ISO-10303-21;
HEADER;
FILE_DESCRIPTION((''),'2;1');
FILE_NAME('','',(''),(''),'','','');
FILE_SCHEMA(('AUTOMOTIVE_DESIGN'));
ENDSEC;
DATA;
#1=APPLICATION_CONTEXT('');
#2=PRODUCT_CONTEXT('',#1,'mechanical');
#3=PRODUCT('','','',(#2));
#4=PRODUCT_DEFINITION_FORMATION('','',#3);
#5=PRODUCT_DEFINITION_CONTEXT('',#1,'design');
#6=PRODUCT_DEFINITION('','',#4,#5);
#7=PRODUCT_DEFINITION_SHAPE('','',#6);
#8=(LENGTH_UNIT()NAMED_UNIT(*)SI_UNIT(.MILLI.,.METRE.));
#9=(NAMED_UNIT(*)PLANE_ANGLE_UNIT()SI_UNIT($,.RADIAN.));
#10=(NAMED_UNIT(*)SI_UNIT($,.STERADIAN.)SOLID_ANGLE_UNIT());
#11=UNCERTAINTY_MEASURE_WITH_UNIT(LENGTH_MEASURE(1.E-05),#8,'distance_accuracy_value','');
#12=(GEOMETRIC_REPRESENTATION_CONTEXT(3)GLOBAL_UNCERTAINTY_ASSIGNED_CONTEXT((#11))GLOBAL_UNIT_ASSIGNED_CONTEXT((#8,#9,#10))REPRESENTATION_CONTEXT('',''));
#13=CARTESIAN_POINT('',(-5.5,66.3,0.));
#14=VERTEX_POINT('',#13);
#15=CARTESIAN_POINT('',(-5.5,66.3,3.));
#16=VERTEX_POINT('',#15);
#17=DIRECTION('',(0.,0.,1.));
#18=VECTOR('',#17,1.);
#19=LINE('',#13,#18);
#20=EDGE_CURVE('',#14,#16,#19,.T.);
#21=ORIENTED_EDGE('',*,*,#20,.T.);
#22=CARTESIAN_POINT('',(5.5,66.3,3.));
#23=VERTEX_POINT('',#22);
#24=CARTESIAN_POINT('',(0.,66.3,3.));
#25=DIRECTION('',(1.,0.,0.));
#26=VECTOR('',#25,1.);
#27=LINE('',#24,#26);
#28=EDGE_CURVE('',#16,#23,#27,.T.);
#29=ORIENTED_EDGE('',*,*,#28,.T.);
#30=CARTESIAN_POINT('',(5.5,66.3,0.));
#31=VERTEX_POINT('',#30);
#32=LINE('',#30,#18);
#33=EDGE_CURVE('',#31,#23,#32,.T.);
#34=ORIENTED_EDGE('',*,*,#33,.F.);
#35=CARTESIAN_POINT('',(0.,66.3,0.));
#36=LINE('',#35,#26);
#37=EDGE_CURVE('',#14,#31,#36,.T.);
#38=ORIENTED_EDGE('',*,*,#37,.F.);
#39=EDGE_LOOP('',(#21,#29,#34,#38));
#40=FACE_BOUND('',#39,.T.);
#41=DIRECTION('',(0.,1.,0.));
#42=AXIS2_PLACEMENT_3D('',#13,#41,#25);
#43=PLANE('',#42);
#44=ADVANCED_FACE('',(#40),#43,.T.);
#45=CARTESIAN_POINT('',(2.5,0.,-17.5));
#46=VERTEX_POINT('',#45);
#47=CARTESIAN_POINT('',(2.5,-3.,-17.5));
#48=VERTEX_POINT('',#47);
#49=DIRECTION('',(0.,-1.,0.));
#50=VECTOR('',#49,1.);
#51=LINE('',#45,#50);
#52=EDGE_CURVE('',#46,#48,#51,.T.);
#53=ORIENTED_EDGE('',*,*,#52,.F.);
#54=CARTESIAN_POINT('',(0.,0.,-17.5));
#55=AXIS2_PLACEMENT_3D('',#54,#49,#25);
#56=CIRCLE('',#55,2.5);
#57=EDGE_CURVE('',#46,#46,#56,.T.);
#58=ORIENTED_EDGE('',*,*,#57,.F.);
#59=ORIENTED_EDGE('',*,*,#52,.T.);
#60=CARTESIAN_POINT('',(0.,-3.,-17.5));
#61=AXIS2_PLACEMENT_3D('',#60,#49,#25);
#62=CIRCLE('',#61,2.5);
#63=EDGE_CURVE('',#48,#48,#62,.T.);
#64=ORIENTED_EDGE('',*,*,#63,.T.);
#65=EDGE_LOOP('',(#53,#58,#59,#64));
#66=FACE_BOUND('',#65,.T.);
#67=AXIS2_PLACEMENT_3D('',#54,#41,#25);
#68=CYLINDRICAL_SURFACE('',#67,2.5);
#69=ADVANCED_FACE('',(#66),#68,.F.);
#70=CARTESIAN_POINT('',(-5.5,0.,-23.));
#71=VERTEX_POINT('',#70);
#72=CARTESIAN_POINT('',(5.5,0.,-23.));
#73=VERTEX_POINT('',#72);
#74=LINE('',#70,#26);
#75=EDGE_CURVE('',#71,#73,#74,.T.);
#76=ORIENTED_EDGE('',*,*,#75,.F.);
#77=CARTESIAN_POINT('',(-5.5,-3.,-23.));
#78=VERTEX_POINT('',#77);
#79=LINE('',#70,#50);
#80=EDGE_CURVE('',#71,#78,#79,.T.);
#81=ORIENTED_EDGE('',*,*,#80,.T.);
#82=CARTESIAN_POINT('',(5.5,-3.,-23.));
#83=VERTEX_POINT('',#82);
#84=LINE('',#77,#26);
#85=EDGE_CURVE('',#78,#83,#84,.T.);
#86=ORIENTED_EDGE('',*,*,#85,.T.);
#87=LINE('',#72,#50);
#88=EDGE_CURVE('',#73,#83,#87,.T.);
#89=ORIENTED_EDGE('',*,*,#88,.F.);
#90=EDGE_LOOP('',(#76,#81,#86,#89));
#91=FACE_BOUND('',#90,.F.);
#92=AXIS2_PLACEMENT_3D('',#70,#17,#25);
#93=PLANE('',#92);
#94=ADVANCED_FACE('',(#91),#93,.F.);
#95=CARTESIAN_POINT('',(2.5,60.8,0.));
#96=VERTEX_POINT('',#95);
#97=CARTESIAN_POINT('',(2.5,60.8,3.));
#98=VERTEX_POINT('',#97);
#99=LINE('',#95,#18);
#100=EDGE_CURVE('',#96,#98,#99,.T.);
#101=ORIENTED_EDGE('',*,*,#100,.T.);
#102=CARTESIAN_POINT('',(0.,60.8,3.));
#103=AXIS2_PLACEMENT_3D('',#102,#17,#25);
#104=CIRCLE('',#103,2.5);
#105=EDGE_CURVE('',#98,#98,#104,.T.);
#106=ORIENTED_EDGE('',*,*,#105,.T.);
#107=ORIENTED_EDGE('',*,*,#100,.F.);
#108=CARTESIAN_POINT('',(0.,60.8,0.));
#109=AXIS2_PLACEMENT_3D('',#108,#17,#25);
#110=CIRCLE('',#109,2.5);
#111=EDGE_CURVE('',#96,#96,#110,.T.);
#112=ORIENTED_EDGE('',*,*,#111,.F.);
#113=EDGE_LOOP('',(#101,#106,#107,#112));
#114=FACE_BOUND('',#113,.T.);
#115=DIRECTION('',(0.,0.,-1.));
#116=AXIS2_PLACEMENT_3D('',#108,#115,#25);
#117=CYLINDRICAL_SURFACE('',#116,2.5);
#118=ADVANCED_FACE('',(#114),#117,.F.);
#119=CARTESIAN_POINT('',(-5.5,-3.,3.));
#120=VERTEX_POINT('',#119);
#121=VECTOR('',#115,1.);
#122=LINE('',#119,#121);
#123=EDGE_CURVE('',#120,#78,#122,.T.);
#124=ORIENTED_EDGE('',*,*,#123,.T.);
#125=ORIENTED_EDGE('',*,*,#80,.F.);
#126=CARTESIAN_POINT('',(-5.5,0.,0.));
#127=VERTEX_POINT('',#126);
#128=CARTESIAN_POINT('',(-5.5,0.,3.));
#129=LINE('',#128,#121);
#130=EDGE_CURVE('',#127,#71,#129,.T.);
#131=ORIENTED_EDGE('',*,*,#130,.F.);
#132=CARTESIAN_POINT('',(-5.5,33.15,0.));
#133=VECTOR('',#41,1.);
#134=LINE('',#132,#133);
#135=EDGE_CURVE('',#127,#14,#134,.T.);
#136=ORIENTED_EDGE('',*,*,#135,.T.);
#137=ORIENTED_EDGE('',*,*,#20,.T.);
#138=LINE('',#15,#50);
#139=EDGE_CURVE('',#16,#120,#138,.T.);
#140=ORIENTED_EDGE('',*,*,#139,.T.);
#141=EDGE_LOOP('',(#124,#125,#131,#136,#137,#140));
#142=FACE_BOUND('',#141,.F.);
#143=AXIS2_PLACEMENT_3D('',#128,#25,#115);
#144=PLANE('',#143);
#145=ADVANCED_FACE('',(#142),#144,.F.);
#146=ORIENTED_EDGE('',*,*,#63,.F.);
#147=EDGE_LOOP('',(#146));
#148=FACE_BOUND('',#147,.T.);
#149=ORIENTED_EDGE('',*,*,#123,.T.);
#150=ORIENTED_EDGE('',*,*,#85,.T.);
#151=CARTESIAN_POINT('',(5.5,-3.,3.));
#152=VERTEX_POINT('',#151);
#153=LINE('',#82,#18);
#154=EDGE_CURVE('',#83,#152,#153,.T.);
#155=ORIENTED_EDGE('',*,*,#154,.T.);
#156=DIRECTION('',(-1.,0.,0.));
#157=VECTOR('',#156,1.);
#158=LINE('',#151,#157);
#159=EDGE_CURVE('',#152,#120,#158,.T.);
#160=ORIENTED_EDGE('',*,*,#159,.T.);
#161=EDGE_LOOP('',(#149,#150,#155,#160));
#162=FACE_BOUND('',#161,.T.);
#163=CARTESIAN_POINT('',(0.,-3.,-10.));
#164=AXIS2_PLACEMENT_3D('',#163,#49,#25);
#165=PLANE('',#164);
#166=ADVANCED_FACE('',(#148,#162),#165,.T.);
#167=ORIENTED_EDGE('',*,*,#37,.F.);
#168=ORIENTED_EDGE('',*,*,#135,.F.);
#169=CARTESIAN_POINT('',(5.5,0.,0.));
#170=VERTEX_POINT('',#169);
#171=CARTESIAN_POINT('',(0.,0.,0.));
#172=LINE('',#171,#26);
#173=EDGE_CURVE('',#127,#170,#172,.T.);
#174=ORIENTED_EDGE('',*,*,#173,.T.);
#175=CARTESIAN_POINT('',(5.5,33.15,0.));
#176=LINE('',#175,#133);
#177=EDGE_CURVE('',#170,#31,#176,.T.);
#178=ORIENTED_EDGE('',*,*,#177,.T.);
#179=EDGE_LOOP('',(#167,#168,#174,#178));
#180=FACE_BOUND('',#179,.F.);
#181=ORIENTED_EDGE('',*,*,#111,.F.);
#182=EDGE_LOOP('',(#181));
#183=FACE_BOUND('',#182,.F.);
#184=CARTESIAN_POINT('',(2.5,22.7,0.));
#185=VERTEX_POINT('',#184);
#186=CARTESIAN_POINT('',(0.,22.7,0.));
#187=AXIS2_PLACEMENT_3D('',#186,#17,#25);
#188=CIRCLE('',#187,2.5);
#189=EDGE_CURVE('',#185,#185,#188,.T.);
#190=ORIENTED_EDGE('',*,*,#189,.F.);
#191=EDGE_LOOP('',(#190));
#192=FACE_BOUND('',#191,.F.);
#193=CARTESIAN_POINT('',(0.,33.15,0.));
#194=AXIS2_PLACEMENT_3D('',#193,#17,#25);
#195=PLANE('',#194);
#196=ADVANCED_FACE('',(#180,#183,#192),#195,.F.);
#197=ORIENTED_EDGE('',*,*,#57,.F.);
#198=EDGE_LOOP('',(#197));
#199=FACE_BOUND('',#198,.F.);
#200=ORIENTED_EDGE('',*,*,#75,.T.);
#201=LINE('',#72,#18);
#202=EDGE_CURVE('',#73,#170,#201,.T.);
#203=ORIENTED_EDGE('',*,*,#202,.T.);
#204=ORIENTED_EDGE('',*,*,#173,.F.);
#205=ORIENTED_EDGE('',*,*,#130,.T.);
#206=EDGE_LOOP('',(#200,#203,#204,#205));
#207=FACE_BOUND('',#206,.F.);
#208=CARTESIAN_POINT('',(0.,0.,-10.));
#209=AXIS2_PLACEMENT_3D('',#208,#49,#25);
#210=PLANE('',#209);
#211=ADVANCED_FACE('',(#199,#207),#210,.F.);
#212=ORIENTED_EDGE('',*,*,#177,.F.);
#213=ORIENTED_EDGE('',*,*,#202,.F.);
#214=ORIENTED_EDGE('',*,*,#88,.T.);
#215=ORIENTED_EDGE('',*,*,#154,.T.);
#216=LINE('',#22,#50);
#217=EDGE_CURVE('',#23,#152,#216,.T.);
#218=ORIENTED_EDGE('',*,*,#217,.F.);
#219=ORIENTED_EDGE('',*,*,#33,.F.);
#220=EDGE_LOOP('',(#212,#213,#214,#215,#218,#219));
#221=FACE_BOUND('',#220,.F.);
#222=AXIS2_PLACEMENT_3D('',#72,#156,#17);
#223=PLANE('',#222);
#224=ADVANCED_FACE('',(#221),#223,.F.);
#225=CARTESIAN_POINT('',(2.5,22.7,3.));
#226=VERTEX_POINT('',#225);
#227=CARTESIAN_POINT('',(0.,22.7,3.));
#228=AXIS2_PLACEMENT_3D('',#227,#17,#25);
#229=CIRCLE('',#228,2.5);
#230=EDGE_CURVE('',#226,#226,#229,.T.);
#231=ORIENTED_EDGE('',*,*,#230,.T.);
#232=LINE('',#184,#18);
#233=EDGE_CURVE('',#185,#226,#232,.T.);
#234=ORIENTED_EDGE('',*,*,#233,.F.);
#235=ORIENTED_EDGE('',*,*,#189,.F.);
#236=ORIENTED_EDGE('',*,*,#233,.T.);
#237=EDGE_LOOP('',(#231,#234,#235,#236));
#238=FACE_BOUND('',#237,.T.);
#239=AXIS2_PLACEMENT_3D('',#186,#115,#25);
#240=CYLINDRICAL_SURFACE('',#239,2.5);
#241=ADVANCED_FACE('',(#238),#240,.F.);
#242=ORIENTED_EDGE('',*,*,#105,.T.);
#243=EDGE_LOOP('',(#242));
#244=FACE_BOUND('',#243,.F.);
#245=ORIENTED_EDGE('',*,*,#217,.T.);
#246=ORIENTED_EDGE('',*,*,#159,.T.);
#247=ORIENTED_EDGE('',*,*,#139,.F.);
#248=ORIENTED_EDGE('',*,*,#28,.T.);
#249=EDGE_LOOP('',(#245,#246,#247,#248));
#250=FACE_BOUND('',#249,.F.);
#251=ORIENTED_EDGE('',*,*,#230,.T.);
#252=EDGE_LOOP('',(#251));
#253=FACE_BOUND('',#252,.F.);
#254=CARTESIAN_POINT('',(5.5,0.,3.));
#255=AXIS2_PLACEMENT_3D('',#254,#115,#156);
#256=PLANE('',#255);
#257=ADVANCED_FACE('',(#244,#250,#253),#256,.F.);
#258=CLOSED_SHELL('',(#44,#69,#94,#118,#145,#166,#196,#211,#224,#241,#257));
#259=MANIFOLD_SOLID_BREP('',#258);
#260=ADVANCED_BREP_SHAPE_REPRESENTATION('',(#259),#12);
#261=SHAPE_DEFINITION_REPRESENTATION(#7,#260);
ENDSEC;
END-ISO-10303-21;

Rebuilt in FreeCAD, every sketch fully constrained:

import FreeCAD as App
import Part
import Sketcher

V = App.Vector
Q = App.Units.Quantity

doc = App.newDocument("Part")
body = doc.addObject("PartDesign::Body", "Body")

# Sketch on XY plane
sketch1 = body.newObject("Sketcher::SketchObject", "Sketch")
sketch1.AttachmentSupport = (doc.getObject("XY_Plane"), [""])
sketch1.MapMode = "FlatFace"
sketch1.addGeometry([
    Part.LineSegment(V(-5.5, 66.3, 0), V(-5.5, 0, 0)),  # 0
    Part.LineSegment(V(-5.5, 0, 0), V(5.5, 0, 0)),  # 1
    Part.LineSegment(V(5.5, 0, 0), V(5.5, 66.3, 0)),  # 2
    Part.LineSegment(V(5.5, 66.3, 0), V(-5.5, 66.3, 0)),  # 3
    Part.Circle(V(0, 22.7, 0), V(0, 0, 1), 2.5),  # 4
    Part.Circle(V(0, 60.8, 0), V(0, 0, 1), 2.5),  # 5
], False)
sketch1.addConstraint([
    Sketcher.Constraint("Coincident", 0, 2, 1, 1),
    Sketcher.Constraint("Coincident", 1, 2, 2, 1),
    Sketcher.Constraint("Coincident", 2, 2, 3, 1),
    Sketcher.Constraint("Coincident", 3, 2, 0, 1),
    Sketcher.Constraint("Vertical", 0),
    Sketcher.Constraint("Horizontal", 1),
    Sketcher.Constraint("Vertical", 2),
    Sketcher.Constraint("Horizontal", 3),
    Sketcher.Constraint("Equal", 4, 5),
    Sketcher.Constraint("Symmetric", 0, 2, 1, 2, -1, 1),
    Sketcher.Constraint("PointOnObject", 4, 3, -2),
    Sketcher.Constraint("PointOnObject", 5, 3, -2),
    Sketcher.Constraint("Diameter", 4, Q("5 mm")),
    Sketcher.Constraint("DistanceX", 1, 1, 1, 2, Q("11 mm")),
    Sketcher.Constraint("DistanceY", 0, 2, 0, 1, Q("66.3 mm")),
    Sketcher.Constraint("DistanceY", -1, 1, 4, 3, Q("22.7 mm")),
    Sketcher.Constraint("DistanceY", -1, 1, 5, 3, Q("60.8 mm")),
])
pad1 = body.newObject("PartDesign::Pad", "Pad")
pad1.Profile = sketch1
pad1.Length = 3

# Sketch on XZ plane
sketch2 = body.newObject("Sketcher::SketchObject", "Sketch001")
sketch2.AttachmentSupport = (doc.getObject("XZ_Plane"), [""])
sketch2.MapMode = "FlatFace"
sketch2.addGeometry([
    Part.LineSegment(V(5.5, -23, 0), V(5.5, 3, 0)),  # 0
    Part.LineSegment(V(5.5, 3, 0), V(-5.5, 3, 0)),  # 1
    Part.LineSegment(V(-5.5, 3, 0), V(-5.5, -23, 0)),  # 2
    Part.LineSegment(V(-5.5, -23, 0), V(5.5, -23, 0)),  # 3
    Part.Circle(V(0, -17.5, 0), V(0, 0, 1), 2.5),  # 4
], False)
sketch2.addConstraint([
    Sketcher.Constraint("Coincident", 0, 2, 1, 1),
    Sketcher.Constraint("Coincident", 1, 2, 2, 1),
    Sketcher.Constraint("Coincident", 2, 2, 3, 1),
    Sketcher.Constraint("Coincident", 3, 2, 0, 1),
    Sketcher.Constraint("Vertical", 0),
    Sketcher.Constraint("Horizontal", 1),
    Sketcher.Constraint("Vertical", 2),
    Sketcher.Constraint("Horizontal", 3),
    Sketcher.Constraint("PointOnObject", 4, 3, -2),
    Sketcher.Constraint("Diameter", 4, Q("5 mm")),
    Sketcher.Constraint("DistanceX", 1, 2, 1, 1, Q("11 mm")),
    Sketcher.Constraint("DistanceY", 0, 1, 0, 2, Q("26 mm")),
    Sketcher.Constraint("DistanceY", -1, 1, 0, 2, Q("3 mm")),
    Sketcher.Constraint("DistanceY", 4, 3, -1, 1, Q("17.5 mm")),
    Sketcher.Constraint("DistanceX", -1, 1, 0, 2, Q("5.5 mm")),
])
pad2 = body.newObject("PartDesign::Pad", "Pad001")
pad2.Profile = sketch2
pad2.Length = 3

doc.recompute()
